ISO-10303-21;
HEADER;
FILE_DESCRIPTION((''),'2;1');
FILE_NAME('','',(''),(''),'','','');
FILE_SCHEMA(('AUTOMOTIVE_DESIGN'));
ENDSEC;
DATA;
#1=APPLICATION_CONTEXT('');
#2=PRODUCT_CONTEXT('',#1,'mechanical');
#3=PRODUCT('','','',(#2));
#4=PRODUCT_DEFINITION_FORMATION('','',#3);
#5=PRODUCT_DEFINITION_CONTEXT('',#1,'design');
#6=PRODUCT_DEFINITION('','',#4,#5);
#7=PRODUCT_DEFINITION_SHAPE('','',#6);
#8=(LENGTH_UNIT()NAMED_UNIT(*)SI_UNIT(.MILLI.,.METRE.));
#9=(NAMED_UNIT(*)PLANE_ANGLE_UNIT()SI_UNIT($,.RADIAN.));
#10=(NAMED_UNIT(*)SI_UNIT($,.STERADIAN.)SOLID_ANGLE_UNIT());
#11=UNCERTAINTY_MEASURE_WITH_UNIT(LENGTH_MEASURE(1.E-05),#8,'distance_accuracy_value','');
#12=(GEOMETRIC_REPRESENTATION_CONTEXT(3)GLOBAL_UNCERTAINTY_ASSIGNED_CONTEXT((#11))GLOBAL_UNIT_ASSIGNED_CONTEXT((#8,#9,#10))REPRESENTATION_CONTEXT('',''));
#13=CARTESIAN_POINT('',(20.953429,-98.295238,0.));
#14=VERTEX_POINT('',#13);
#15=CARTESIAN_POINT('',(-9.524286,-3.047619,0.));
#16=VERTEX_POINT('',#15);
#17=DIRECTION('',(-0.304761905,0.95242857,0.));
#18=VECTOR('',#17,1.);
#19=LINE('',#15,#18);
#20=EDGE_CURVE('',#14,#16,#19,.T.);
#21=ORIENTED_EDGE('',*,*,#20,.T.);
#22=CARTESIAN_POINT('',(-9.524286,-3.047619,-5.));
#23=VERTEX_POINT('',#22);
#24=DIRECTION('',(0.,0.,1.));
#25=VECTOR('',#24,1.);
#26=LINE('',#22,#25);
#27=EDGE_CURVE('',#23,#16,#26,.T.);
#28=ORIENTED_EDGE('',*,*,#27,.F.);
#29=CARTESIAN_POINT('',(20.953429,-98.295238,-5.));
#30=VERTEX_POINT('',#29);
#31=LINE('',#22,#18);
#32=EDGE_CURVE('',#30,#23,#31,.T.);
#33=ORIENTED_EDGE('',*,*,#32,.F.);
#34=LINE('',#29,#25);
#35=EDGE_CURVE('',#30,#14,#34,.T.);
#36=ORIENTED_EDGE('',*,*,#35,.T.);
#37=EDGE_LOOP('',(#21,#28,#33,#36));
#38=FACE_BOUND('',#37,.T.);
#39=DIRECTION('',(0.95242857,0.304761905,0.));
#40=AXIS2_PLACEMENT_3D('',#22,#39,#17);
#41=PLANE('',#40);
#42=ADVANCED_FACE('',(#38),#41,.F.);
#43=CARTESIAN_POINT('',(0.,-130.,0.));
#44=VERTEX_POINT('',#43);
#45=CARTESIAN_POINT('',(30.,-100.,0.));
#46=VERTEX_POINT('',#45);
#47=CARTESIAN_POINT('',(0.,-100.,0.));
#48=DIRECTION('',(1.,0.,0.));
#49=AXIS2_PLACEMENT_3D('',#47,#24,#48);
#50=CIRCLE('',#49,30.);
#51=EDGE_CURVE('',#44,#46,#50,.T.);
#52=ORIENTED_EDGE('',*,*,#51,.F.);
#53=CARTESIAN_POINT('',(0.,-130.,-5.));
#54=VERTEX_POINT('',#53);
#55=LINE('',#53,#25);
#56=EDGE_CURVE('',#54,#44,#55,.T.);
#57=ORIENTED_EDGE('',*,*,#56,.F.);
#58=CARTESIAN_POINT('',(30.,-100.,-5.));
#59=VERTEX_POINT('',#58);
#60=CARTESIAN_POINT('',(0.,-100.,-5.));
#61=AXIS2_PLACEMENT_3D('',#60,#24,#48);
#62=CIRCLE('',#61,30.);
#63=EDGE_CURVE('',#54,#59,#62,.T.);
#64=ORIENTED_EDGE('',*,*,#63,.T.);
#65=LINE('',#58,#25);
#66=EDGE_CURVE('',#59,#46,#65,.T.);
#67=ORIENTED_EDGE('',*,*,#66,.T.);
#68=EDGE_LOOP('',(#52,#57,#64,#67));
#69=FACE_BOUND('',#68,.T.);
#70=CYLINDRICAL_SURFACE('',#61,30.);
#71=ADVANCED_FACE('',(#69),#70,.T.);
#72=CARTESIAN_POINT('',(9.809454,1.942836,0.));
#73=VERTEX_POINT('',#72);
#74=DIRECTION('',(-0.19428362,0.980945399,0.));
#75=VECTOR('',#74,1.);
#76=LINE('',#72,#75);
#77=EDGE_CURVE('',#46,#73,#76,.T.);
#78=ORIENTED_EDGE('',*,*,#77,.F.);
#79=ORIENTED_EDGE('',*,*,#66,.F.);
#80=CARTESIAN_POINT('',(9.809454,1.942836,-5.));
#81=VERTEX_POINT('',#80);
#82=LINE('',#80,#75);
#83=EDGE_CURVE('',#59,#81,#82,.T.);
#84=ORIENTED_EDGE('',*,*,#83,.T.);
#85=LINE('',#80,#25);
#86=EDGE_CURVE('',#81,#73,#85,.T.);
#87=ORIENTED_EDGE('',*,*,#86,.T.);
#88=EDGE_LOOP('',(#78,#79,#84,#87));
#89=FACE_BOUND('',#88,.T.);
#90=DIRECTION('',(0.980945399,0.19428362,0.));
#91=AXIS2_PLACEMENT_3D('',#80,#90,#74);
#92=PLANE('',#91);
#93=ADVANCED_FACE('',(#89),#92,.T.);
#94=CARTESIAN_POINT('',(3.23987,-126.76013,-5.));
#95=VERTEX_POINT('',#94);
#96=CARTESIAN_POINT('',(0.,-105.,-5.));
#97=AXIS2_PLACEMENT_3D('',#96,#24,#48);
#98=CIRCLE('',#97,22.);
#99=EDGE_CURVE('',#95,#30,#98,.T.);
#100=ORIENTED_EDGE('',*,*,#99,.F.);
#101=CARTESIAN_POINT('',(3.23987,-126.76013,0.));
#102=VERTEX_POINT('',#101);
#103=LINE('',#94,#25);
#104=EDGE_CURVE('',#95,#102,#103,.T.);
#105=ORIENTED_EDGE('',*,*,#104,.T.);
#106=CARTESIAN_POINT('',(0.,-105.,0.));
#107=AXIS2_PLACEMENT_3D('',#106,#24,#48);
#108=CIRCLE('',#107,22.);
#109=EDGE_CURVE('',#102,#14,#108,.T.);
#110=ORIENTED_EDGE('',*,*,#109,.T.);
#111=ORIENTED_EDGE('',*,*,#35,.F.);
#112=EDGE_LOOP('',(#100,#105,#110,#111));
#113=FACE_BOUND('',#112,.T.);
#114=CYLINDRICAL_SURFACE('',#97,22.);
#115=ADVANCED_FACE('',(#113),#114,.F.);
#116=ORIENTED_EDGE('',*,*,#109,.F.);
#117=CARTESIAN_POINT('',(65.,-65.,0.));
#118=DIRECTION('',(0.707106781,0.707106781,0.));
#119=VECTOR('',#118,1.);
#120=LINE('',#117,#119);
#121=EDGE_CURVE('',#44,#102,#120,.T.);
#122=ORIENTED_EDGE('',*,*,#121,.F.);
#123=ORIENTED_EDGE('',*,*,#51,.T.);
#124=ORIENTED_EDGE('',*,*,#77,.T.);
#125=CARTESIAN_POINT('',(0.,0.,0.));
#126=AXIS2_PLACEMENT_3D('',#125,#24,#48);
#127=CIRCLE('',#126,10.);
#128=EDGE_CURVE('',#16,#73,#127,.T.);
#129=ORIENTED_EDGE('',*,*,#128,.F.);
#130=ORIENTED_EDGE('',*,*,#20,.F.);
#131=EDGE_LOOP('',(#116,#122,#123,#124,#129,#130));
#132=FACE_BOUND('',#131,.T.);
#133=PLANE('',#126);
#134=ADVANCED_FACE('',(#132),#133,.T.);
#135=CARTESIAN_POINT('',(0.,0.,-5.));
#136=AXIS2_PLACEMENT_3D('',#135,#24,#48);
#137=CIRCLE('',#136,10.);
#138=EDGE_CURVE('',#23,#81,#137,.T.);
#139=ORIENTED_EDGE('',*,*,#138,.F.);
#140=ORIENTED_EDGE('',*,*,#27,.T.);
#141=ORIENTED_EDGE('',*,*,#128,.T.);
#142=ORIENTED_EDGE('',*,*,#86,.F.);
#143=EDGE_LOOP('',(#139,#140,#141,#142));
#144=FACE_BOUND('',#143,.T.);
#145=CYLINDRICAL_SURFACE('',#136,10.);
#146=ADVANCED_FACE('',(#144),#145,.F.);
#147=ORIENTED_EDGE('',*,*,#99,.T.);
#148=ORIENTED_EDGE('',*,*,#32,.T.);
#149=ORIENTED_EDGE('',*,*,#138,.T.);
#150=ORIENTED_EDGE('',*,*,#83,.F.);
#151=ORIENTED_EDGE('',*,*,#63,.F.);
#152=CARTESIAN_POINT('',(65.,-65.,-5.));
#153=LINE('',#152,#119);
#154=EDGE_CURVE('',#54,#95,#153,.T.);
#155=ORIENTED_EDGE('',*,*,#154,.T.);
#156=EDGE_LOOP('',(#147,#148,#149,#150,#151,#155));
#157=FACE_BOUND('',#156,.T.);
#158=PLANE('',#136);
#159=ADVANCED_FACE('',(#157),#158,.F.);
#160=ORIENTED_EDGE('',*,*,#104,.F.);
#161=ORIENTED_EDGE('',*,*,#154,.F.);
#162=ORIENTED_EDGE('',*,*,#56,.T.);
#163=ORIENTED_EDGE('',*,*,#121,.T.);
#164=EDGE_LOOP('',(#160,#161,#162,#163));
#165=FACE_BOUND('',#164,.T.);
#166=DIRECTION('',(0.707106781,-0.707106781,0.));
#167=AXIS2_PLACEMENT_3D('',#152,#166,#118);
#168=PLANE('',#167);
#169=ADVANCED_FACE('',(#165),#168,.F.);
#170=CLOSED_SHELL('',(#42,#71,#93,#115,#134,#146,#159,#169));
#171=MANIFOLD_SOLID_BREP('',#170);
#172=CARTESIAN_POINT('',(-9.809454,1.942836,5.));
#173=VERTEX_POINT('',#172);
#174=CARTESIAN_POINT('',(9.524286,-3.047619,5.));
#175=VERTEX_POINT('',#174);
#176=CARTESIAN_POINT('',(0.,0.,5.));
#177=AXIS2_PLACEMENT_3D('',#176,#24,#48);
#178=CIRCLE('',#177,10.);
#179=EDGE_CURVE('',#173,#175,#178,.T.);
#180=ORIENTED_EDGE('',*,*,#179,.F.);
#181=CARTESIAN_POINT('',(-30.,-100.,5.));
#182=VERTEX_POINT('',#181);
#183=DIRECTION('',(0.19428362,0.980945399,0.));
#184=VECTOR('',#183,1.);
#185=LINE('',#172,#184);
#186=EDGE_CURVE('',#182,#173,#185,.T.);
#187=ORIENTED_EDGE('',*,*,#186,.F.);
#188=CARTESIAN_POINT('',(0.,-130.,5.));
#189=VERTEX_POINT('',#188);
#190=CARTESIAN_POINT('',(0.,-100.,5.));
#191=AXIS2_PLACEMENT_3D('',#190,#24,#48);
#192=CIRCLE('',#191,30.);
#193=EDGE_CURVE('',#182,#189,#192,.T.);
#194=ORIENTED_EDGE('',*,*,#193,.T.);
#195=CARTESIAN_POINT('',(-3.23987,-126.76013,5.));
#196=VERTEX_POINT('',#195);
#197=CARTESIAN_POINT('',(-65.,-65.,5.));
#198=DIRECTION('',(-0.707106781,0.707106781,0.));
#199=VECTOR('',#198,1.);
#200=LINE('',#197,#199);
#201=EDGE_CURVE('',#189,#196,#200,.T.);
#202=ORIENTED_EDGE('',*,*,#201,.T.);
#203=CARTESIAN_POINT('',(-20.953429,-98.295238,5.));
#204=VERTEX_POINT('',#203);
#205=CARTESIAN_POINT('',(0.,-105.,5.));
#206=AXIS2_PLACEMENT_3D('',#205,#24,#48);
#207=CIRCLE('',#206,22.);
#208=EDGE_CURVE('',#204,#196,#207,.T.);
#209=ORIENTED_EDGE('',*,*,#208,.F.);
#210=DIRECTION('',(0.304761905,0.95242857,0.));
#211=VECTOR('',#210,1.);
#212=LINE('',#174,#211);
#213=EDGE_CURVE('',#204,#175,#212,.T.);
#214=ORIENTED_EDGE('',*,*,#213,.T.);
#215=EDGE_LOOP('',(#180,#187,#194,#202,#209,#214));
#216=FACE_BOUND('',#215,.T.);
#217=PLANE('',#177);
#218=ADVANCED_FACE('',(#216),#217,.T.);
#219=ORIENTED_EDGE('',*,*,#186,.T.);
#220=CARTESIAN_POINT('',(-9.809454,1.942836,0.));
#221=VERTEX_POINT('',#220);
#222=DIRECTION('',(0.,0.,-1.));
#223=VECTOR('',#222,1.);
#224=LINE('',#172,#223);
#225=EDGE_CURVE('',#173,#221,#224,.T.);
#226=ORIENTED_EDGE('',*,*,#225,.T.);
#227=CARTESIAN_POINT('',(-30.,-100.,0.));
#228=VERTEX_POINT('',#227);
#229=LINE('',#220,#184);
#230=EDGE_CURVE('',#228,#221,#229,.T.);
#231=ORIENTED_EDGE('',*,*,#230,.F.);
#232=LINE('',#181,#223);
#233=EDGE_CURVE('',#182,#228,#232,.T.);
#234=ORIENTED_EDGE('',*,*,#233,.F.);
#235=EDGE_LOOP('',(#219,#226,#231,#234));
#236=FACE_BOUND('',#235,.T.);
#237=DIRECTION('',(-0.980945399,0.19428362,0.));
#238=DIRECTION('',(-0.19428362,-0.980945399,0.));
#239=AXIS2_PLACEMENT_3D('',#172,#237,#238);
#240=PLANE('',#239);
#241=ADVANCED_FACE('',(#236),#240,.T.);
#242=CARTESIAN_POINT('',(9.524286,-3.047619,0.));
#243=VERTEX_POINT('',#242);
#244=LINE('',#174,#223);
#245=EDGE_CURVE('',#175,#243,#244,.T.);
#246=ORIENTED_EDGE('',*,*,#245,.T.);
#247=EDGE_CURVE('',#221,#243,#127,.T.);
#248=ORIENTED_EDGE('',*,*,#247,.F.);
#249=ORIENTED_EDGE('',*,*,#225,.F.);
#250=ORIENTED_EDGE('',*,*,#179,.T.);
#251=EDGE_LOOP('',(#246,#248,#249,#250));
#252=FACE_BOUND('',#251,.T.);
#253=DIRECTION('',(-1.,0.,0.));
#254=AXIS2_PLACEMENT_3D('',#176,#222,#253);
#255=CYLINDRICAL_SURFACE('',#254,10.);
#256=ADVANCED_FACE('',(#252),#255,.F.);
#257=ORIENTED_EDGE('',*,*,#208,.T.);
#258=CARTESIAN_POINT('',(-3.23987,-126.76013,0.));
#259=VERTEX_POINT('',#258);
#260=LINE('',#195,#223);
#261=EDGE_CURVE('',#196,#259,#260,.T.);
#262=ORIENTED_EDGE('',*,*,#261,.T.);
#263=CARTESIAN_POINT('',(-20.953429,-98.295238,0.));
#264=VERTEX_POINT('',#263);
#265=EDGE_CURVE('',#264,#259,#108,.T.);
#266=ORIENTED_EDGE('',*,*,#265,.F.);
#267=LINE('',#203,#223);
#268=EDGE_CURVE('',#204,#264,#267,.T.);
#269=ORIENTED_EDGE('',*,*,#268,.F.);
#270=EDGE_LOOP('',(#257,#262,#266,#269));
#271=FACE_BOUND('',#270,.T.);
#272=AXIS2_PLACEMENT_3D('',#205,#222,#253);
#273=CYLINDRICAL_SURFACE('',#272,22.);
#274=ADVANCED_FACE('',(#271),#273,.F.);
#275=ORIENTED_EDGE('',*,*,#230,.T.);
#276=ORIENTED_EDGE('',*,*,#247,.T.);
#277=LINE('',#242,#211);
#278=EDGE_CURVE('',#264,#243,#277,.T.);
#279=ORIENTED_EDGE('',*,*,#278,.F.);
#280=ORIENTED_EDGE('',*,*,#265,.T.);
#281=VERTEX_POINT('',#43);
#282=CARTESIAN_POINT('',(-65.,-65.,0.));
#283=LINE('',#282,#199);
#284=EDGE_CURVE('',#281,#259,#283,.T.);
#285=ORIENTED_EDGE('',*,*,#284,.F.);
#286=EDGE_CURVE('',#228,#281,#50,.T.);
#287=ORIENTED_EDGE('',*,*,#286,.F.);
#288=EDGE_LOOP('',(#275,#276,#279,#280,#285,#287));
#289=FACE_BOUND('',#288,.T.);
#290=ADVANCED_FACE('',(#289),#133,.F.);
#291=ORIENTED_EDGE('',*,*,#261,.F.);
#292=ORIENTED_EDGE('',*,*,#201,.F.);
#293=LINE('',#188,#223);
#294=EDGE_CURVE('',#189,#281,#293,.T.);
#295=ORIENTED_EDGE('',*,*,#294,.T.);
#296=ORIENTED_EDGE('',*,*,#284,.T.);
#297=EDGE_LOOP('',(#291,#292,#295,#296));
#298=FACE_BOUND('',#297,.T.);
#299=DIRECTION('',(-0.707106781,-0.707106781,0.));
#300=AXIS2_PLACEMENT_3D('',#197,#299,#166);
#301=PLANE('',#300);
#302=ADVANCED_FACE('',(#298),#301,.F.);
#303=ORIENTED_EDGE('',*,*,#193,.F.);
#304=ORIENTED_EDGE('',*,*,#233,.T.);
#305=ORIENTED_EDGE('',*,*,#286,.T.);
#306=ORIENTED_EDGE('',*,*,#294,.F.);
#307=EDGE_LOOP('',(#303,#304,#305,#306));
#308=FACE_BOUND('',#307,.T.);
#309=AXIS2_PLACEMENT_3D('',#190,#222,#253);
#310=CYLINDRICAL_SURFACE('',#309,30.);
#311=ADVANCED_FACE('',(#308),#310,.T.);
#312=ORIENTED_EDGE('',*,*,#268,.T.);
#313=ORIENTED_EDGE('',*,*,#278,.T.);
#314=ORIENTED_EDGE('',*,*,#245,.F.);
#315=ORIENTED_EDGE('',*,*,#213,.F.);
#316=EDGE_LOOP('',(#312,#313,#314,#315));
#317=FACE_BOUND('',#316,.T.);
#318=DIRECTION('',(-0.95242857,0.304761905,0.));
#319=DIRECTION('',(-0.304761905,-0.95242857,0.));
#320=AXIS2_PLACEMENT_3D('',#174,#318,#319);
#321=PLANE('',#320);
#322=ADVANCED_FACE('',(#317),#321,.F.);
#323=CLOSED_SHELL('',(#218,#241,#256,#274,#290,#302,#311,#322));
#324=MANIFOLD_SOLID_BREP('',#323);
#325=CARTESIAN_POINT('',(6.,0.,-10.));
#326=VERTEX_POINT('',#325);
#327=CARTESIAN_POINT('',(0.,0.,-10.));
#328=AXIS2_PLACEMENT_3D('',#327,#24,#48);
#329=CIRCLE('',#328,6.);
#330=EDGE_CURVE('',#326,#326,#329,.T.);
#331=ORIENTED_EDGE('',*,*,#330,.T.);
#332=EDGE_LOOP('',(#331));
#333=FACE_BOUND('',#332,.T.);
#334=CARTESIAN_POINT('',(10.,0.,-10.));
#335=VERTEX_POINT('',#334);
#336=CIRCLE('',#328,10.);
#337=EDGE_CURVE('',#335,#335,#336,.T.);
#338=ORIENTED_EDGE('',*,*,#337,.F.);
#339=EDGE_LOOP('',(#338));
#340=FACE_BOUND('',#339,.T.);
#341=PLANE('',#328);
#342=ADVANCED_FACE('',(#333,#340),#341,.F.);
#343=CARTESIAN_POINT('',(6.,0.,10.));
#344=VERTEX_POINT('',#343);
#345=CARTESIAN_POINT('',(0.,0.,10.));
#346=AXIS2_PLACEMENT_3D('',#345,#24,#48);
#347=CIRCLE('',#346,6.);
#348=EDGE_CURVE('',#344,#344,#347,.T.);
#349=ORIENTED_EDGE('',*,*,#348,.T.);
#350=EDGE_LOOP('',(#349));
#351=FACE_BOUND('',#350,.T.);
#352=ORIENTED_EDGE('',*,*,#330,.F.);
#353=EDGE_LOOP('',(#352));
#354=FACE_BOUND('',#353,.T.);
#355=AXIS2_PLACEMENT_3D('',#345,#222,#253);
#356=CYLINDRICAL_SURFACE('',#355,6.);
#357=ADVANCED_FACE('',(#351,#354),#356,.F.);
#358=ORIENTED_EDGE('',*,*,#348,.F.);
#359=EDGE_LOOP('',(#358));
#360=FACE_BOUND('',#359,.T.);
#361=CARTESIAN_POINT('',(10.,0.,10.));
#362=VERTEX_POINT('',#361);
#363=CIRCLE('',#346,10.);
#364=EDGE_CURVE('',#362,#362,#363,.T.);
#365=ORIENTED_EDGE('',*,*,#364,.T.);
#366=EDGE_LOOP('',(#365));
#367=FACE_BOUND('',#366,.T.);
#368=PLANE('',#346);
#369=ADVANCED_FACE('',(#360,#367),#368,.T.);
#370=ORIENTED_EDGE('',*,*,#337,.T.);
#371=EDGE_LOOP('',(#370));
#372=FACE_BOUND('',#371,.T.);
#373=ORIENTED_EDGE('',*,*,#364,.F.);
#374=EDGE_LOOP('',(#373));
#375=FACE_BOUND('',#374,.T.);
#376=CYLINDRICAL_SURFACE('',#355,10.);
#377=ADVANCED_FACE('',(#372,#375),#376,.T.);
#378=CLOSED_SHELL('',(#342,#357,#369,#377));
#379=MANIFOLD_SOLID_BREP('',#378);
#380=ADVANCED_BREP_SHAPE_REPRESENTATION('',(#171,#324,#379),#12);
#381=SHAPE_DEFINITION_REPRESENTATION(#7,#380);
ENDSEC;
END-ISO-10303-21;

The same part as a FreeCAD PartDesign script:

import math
import FreeCAD as App
import Part
import Sketcher
Q = App.Units.Quantity

doc = App.newDocument("Part")
params = doc.addObject("Spreadsheet::Sheet", "Params")
for row, (alias, value) in enumerate([
    ("sketch1_diameter", "20 mm"),
    ("sketch1_diameter2", "12 mm"),
    ("pad1_length", "20 mm"),
    ("sketch2_radius", "30 mm"),
    ("sketch2_radius2", "22 mm"),
    ("sketch2_radius3", "10 mm"),
    ("pad2_length", "5 mm"),
    ("sketch3_radius", "30 mm"),
    ("sketch3_radius2", "10 mm"),
    ("sketch3_radius3", "22 mm"),
    ("pad3_length", "5 mm"),
], start=1):
    params.set(f"A{row}", alias)
    params.set(f"B{row}", "=" + value)
    params.setAlias(f"B{row}", alias)

body = doc.addObject("PartDesign::Body", "Body")

# Sketch on XY plane
sketch1 = body.newObject("Sketcher::SketchObject", "Sketch")
sketch1.AttachmentSupport = (doc.getObject("XY_Plane"), [""])
sketch1.MapMode = "FlatFace"
sketch1.addGeometry([
    Part.Circle(App.Vector(0, 0, 0), App.Vector(0, 0, 1), 10),
    Part.Circle(App.Vector(0, 0, 0), App.Vector(0, 0, 1), 6),
], False)
sketch1.addConstraint([
    Sketcher.Constraint("Coincident", 0, 3, -1, 1),
    Sketcher.Constraint("Coincident", 1, 3, -1, 1),
    Sketcher.Constraint("Diameter", 0, Q("20 mm")),
    Sketcher.Constraint("Diameter", 1, Q("12 mm")),
])
sketch1.setExpression("Constraints[2]", "Params.sketch1_diameter")
sketch1.setExpression("Constraints[3]", "Params.sketch1_diameter2")
pad1 = body.newObject("PartDesign::Pad", "Pad")
pad1.Profile = sketch1
pad1.setExpression("Length", "Params.pad1_length")
pad1.Midplane = True
body2 = doc.addObject("PartDesign::Body", "Body001")

# Sketch on XY plane
sketch2 = body2.newObject("Sketcher::SketchObject", "Sketch001")
sketch2.AttachmentSupport = (doc.getObject("XY_Plane001"), [""])
sketch2.MapMode = "FlatFace"
sketch2.addGeometry([
    Part.ArcOfCircle(Part.Circle(App.Vector(0, -100, 0), App.Vector(0, 0, 1), 30), math.radians(180), math.radians(270)),  # 0
    Part.LineSegment(App.Vector(0, -130, 0), App.Vector(-3.2, -126.8, 0)),  # 1
    Part.ArcOfCircle(Part.Circle(App.Vector(0, -105, 0), App.Vector(0, 0, 1), 22), math.radians(162), math.radians(262)),  # 2
    Part.LineSegment(App.Vector(-21, -98.3, 0), App.Vector(0, -32.8, 0)),  # 3
    Part.LineSegment(App.Vector(0, -32.8, 0), App.Vector(9.5, -3, 0)),  # 4
    Part.ArcOfCircle(Part.Circle(App.Vector(0, 0, 0), App.Vector(0, 0, 1), 10), math.radians(-162), math.radians(-18)),  # 5
    Part.ArcOfCircle(Part.Circle(App.Vector(0, 0, 0), App.Vector(0, 0, 1), 10), math.radians(169), math.radians(198)),  # 6
    Part.LineSegment(App.Vector(-9.8, 1.9, 0), App.Vector(-30, -100, 0)),  # 7
], False)
sketch2.addConstraint([
    Sketcher.Constraint("Coincident", 0, 2, 1, 1),
    Sketcher.Constraint("Coincident", 1, 2, 2, 2),
    Sketcher.Constraint("Tangent", 2, 1, 3, 1),
    Sketcher.Constraint("Coincident", 3, 2, 4, 1),
    Sketcher.Constraint("Tangent", 4, 2, 5, 2),
    Sketcher.Constraint("Tangent", 5, 1, 6, 2),
    Sketcher.Constraint("Tangent", 6, 1, 7, 1),
    Sketcher.Constraint("Coincident", 7, 2, 0, 1),
    Sketcher.Constraint("Coincident", 5, 3, -1, 1),
    Sketcher.Constraint("Equal", 5, 6),
    Sketcher.Constraint("PointOnObject", 0, 3, -2),
    Sketcher.Constraint("PointOnObject", 2, 3, -2),
    Sketcher.Constraint("PointOnObject", 0, 2, -2),
    Sketcher.Constraint("PointOnObject", 3, 2, -2),
    Sketcher.Constraint("Parallel", 3, 4),
    Sketcher.Constraint("Horizontal", 4, 2, 5, 1),
    Sketcher.Constraint("Horizontal", 0, 3, 7, 2),
    Sketcher.Constraint("Radius", 0, Q("30 mm")),
    Sketcher.Constraint("Radius", 2, Q("22 mm")),
    Sketcher.Constraint("Radius", 5, Q("10 mm")),
    Sketcher.Constraint("Angle", 1, Q("135 deg")),
    Sketcher.Constraint("DistanceY", 0, 3, -1, 1, Q("100 mm")),
    Sketcher.Constraint("DistanceY", 2, 3, -1, 1, Q("105 mm")),
])
sketch2.setExpression("Constraints[17]", "Params.sketch2_radius")
sketch2.setExpression("Constraints[18]", "Params.sketch2_radius2")
sketch2.setExpression("Constraints[19]", "Params.sketch2_radius3")
pad2 = body2.newObject("PartDesign::Pad", "Pad001")
pad2.Profile = sketch2
pad2.setExpression("Length", "Params.pad2_length")
body3 = doc.addObject("PartDesign::Body", "Body002")

# Sketch on XY plane
sketch3 = body3.newObject("Sketcher::SketchObject", "Sketch002")
sketch3.AttachmentSupport = (doc.getObject("XY_Plane002"), [""])
sketch3.MapMode = "FlatFace"
sketch3.addGeometry([
    Part.LineSegment(App.Vector(3.2, -126.8, 0), App.Vector(0, -130, 0)),  # 0
    Part.ArcOfCircle(Part.Circle(App.Vector(0, -100, 0), App.Vector(0, 0, 1), 30), math.radians(-90), math.radians(0)),  # 1
    Part.LineSegment(App.Vector(30, -100, 0), App.Vector(9.8, 1.9, 0)),  # 2
    Part.ArcOfCircle(Part.Circle(App.Vector(0, 0, 0), App.Vector(0, 0, 1), 10), math.radians(0), math.radians(11.2)),  # 3
    Part.ArcOfCircle(Part.Circle(App.Vector(0, 0, 0), App.Vector(0, 0, 1), 10), math.radians(-17.74), math.radians(0)),  # 4
    Part.ArcOfCircle(Part.Circle(App.Vector(0, 0, 0), App.Vector(0, 0, 1), 10), math.radians(-162), math.radians(-18)),  # 5
    Part.LineSegment(App.Vector(-9.5, -3, 0), App.Vector(0, -32.8, 0)),  # 6
    Part.LineSegment(App.Vector(0, -32.8, 0), App.Vector(21, -98.3, 0)),  # 7
    Part.ArcOfCircle(Part.Circle(App.Vector(0, -105, 0), App.Vector(0, 0, 1), 22), math.radians(-82), math.radians(18)),  # 8
], False)
sketch3.addConstraint([
    Sketcher.Constraint("Coincident", 0, 2, 1, 1),
    Sketcher.Constraint("Coincident", 1, 2, 2, 1),
    Sketcher.Constraint("Tangent", 2, 2, 3, 2),
    Sketcher.Constraint("Tangent", 3, 1, 4, 2),
    Sketcher.Constraint("Tangent", 4, 1, 5, 2),
    Sketcher.Constraint("Tangent", 5, 1, 6, 1),
    Sketcher.Constraint("Coincident", 6, 2, 7, 1),
    Sketcher.Constraint("Tangent", 7, 2, 8, 2),
    Sketcher.Constraint("Coincident", 8, 1, 0, 1),
    Sketcher.Constraint("Coincident", 3, 3, -1, 1),
    Sketcher.Constraint("Coincident", 5, 3, -1, 1),
    Sketcher.Constraint("PointOnObject", 1, 3, -2),
    Sketcher.Constraint("PointOnObject", 8, 3, -2),
    Sketcher.Constraint("PointOnObject", 0, 2, -2),
    Sketcher.Constraint("PointOnObject", 3, 1, -1),
    Sketcher.Constraint("PointOnObject", 6, 2, -2),
    Sketcher.Constraint("Parallel", 6, 7),
    Sketcher.Constraint("Horizontal", 4, 1, 5, 1),
    Sketcher.Constraint("Radius", 1, Q("30 mm")),
    Sketcher.Constraint("Radius", 3, Q("10 mm")),
    Sketcher.Constraint("Radius", 8, Q("22 mm")),
    Sketcher.Constraint("Angle", 0, Q("-135 deg")),
    Sketcher.Constraint("DistanceY", 1, 3, -1, 1, Q("100 mm")),
    Sketcher.Constraint("DistanceY", 8, 3, -1, 1, Q("105 mm")),
    Sketcher.Constraint("DistanceY", 1, 2, -1, 1, Q("100 mm")),
])
sketch3.setExpression("Constraints[18]", "Params.sketch3_radius")
sketch3.setExpression("Constraints[19]", "Params.sketch3_radius2")
sketch3.setExpression("Constraints[20]", "Params.sketch3_radius3")
pad3 = body3.newObject("PartDesign::Pad", "Pad002")
pad3.Profile = sketch3
pad3.setExpression("Length", "Params.pad3_length")
pad3.Reversed = True

doc.recompute()
